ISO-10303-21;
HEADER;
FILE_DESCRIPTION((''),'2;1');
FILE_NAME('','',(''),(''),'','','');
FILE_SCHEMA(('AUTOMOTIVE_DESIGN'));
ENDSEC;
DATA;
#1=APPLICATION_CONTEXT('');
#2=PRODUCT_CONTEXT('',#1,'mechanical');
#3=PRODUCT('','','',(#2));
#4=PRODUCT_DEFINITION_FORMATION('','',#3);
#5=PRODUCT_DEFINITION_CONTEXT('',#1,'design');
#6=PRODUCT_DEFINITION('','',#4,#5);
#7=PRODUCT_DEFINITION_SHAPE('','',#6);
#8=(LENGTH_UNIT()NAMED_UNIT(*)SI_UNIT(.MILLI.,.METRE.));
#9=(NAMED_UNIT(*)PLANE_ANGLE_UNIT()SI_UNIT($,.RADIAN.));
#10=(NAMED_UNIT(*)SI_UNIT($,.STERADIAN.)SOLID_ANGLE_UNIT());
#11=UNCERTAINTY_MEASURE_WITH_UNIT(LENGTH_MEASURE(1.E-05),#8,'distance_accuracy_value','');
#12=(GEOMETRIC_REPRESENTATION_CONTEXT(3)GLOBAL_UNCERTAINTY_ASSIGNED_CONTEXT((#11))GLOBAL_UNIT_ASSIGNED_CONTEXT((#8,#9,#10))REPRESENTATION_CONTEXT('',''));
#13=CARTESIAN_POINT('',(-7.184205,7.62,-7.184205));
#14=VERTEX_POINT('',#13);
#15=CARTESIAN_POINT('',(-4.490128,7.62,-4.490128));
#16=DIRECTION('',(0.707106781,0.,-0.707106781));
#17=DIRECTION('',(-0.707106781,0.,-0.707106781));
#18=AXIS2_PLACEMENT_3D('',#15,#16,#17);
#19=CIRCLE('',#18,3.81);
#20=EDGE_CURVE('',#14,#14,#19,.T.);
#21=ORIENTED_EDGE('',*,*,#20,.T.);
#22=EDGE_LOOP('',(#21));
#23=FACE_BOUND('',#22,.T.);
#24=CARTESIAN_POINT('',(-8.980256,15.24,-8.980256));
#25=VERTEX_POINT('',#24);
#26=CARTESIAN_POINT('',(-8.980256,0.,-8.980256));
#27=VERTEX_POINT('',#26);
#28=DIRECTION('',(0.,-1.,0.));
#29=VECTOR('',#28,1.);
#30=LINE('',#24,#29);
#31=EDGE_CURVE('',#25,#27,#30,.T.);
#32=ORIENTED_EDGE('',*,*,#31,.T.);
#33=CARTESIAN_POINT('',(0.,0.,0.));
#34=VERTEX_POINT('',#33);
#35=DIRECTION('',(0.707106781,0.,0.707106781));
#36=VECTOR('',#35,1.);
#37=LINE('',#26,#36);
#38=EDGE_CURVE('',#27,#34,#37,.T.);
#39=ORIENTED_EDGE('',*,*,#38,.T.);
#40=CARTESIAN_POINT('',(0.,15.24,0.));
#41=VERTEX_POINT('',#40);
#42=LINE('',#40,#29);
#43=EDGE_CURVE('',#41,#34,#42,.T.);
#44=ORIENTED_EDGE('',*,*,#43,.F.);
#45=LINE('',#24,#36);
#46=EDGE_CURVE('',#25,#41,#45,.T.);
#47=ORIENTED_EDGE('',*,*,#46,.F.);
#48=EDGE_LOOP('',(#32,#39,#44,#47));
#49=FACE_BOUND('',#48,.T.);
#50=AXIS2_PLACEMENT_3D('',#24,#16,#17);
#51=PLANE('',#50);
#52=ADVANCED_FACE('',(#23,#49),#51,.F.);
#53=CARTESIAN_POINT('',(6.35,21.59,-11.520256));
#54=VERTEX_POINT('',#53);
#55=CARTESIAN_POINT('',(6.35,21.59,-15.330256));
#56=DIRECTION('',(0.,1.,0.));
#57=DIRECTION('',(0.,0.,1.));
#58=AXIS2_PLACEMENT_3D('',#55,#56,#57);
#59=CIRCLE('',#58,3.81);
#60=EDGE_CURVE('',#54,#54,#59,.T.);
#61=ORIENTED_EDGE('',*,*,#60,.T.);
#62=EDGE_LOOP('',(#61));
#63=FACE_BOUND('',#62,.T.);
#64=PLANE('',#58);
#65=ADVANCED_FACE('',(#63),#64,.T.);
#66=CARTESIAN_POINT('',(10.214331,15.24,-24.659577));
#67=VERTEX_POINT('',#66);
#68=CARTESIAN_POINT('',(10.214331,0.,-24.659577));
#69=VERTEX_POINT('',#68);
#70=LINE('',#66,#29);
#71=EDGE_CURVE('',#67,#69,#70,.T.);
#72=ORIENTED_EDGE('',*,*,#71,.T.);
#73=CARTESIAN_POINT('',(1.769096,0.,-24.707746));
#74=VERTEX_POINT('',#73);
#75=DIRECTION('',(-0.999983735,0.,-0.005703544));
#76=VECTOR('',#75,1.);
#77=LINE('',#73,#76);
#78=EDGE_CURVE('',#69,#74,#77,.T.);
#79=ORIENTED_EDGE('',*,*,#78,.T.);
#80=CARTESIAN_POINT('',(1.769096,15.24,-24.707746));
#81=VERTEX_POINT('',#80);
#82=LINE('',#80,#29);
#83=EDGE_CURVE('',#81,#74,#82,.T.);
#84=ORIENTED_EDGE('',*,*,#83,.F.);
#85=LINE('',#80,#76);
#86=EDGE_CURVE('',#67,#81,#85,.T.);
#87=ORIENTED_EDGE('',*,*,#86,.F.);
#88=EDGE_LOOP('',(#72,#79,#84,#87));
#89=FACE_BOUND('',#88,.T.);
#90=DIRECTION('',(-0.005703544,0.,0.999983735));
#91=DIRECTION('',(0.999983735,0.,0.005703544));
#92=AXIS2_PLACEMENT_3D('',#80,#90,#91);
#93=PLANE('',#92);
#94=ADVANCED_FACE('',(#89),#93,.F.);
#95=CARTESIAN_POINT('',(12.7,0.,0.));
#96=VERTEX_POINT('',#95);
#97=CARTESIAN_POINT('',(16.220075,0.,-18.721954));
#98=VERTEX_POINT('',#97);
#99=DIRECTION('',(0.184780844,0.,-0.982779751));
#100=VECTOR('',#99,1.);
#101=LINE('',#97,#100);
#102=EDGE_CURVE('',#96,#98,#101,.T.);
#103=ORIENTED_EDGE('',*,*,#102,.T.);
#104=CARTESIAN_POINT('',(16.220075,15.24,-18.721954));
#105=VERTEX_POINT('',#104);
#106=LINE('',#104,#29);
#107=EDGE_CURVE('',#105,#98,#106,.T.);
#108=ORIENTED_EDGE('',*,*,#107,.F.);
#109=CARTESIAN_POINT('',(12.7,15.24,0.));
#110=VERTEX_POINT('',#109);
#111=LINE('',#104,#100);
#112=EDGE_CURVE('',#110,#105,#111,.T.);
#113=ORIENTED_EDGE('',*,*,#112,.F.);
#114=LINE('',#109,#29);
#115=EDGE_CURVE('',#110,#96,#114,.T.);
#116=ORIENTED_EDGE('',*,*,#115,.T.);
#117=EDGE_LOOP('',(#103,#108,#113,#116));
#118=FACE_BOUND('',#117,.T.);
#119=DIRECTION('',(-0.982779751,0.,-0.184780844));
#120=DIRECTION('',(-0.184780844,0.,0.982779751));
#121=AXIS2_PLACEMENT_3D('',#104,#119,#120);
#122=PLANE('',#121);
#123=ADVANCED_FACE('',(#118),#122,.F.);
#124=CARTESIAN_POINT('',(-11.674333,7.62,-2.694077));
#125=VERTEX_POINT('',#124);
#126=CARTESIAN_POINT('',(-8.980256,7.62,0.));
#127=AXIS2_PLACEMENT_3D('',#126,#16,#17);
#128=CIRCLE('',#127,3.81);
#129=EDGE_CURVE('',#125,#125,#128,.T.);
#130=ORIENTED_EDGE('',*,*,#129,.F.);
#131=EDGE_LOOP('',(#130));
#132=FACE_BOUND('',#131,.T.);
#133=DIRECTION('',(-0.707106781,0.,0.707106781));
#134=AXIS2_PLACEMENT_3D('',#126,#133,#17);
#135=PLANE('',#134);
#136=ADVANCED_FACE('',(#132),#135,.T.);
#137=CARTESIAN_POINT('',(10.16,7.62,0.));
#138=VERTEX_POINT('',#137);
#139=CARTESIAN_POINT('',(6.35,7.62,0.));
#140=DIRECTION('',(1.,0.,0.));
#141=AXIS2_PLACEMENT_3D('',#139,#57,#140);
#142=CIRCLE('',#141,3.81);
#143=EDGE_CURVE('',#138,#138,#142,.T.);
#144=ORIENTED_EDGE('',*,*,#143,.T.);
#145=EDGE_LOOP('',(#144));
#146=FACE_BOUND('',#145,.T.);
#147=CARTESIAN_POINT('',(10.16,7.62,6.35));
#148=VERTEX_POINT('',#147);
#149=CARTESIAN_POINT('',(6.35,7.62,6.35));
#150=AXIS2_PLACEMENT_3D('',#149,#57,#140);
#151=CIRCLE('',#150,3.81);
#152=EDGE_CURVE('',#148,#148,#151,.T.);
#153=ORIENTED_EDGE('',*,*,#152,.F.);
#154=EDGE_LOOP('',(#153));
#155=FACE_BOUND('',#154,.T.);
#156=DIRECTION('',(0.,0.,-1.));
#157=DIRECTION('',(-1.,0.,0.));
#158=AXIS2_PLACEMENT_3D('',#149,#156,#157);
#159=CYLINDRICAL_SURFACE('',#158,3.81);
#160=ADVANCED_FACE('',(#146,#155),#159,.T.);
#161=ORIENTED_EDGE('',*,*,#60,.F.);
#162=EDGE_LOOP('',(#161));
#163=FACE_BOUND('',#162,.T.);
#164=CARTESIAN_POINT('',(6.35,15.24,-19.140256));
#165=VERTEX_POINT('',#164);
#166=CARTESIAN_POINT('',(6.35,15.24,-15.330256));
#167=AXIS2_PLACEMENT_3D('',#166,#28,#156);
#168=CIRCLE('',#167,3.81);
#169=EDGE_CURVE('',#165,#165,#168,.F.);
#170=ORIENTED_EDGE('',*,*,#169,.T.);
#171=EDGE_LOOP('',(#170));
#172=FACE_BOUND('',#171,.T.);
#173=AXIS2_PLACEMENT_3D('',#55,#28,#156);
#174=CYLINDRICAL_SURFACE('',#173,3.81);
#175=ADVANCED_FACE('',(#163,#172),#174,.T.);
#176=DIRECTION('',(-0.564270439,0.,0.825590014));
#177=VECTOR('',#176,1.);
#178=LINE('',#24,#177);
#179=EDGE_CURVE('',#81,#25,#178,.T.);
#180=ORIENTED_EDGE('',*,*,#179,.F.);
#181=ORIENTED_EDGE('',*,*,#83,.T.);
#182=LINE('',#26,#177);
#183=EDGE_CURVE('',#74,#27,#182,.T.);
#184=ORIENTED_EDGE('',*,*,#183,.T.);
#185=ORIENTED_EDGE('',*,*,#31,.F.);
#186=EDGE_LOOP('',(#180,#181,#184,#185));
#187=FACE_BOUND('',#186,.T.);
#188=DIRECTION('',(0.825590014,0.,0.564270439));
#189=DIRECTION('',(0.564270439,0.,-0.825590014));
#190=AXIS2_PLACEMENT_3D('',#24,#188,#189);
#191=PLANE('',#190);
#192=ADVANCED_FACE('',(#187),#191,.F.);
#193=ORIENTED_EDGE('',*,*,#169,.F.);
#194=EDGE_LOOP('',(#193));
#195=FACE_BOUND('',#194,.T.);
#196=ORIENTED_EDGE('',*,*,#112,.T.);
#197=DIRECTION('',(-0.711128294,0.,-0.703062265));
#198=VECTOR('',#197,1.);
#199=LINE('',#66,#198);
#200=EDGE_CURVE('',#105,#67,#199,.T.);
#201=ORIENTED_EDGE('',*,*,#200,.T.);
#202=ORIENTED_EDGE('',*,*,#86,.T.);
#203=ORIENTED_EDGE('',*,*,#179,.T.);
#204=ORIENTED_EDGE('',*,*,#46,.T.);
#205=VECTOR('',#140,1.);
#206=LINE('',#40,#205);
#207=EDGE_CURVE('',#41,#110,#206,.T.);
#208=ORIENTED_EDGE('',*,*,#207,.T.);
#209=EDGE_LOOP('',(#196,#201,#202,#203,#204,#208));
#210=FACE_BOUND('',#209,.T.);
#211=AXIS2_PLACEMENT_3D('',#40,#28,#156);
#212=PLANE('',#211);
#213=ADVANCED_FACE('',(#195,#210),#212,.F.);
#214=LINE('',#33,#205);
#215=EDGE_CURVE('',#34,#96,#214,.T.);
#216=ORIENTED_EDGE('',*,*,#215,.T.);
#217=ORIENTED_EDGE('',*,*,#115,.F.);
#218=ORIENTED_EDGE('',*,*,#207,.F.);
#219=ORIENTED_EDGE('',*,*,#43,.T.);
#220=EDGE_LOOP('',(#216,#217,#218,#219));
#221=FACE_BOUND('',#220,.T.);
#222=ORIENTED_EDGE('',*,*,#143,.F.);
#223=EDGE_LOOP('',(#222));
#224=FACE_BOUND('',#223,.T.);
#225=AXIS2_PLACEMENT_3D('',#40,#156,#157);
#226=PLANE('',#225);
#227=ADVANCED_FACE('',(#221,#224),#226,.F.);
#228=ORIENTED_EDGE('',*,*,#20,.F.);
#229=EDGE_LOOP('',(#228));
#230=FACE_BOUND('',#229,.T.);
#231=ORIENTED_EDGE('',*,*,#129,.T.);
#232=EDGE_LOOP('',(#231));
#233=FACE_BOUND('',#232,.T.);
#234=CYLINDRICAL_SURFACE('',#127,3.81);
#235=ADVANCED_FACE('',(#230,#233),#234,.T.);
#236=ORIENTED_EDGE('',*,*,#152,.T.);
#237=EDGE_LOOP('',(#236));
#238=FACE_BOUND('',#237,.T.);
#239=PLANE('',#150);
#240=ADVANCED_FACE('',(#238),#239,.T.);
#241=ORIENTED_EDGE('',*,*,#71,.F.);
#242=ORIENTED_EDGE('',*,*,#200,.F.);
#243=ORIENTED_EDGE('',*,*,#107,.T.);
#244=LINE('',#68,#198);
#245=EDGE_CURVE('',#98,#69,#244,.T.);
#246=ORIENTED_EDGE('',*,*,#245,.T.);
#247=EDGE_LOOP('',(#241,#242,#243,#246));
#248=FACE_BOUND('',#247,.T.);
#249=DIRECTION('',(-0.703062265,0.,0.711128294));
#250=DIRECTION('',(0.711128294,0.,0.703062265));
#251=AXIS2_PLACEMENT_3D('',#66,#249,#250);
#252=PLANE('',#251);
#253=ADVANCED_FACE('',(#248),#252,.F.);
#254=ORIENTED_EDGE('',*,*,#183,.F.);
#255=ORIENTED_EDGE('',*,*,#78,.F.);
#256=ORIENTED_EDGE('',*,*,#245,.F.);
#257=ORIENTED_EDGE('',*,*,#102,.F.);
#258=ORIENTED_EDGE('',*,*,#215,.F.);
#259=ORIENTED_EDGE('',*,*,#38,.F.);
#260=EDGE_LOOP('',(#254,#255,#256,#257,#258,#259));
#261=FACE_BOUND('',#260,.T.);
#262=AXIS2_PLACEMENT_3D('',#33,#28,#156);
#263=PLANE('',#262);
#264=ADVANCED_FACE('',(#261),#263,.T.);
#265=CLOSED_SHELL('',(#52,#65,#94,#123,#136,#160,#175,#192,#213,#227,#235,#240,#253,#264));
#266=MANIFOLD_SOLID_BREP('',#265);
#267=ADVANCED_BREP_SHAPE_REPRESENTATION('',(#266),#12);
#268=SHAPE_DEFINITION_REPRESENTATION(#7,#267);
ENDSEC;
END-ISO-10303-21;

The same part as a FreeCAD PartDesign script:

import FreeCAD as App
import Part
import Sketcher
Q = App.Units.Quantity


def add_polygon(sketch, points):
    """Adds a closed chain of lines whose ends are joined by coincident constraints."""
    first, n = sketch.GeometryCount, len(points)
    for a, b in zip(points, points[1:] + points[:1]):
        sketch.addGeometry(Part.LineSegment(App.Vector(*a, 0), App.Vector(*b, 0)), False)
    for i in range(n):
        sketch.addConstraint(Sketcher.Constraint("Coincident", first + i, 2, first + (i + 1) % n, 1))

doc = App.newDocument("Part")
body = doc.addObject("PartDesign::Body", "Body")

sketch1 = body.newObject("Sketcher::SketchObject", "Sketch")
sketch1.AttachmentSupport = (doc.getObject("XZ_Plane"), [""])
sketch1.MapMode = "FlatFace"
add_polygon(sketch1, [(-9, -9), (0, 0), (13, 0), (16, -19), (10, -25), (2, -25)])
sketch1.addConstraint([
    Sketcher.Constraint("Horizontal", 1),
    Sketcher.Constraint("Coincident", 0, 2, -1, 1),
    Sketcher.Constraint("Equal", 3, 4),
    Sketcher.Constraint("Equal", 2, 5),
    Sketcher.Constraint("DistanceX", 1, 1, 1, 2, Q("0.5 in")),
    Sketcher.Constraint("Angle", 0, Q("45 deg")),
    Sketcher.Constraint("Distance", 0, Q("0.5 in")),
    Sketcher.Constraint("Distance", 2, Q("0.75 in")),
    Sketcher.Constraint("DistanceY", 2, 2, 5, 2, Q("9.741698 mm")),
    Sketcher.Constraint("DistanceX", -1, 1, 3, 2, Q("10.214331 mm")),
    Sketcher.Constraint("DistanceY", 4, 2, 3, 2, Q("0.048169 mm")),
])
pad1 = body.newObject("PartDesign::Pad", "Pad")
pad1.Profile = sketch1
pad1.Length = Q("0.6 in")
pad1.Reversed = True

sketch2 = body.newObject("Sketcher::SketchObject", "Sketch001")
sketch2.AttachmentSupport = (doc.getObject("XY_Plane"), [""])
sketch2.MapMode = "FlatFace"
sketch2.addGeometry(Part.Circle(App.Vector(6.3, 7.6, 0), App.Vector(0, 0, 1), 3.8), False)
sketch2.addConstraint([
    Sketcher.Constraint("Diameter", 0, Q("0.3 in")),
    Sketcher.Constraint("DistanceY", -1, 1, 0, 3, Q("0.3 in")),
    Sketcher.Constraint("DistanceX", -1, 1, 0, 3, Q("0.25 in")),
])
pad2 = body.newObject("PartDesign::Pad", "Pad001")
pad2.Profile = sketch2
pad2.Length = Q("0.25 in")
doc.recompute()

datumplane = body.newObject("PartDesign::Plane", "DatumPlane")
datumplane.Placement = App.Placement(App.Vector(0, 0, 0), App.Rotation(App.Vector(-0.382683432, 0, 0.923879533), App.Vector(0, -1, 0), App.Vector(0.923879533, 0, 0.382683432), "ZXY"))
mirrored = body.newObject("PartDesign::Mirrored", "Mirrored")
mirrored.Originals = [pad2]
mirrored.MirrorPlane = (datumplane, [""])
body.Tip = mirrored

sketch3 = body.newObject("Sketcher::SketchObject", "Sketch002")
sketch3.AttachmentSupport = (doc.getObject("XZ_Plane"), [""])
sketch3.MapMode = "FlatFace"
sketch3.AttachmentOffset = App.Placement(App.Vector(0, 0, -0.6 * 25.4), App.Rotation())
sketch3.addGeometry(Part.Circle(App.Vector(6.3, -15.3, 0), App.Vector(0, 0, 1), 3.8), False)
sketch3.addConstraint([
    Sketcher.Constraint("Diameter", 0, Q("0.3 in")),
    Sketcher.Constraint("DistanceX", -1, 1, 0, 3, Q("0.25 in")),
    Sketcher.Constraint("DistanceY", 0, 3, -1, 1, Q("15.330256 mm")),
])
pad3 = body.newObject("PartDesign::Pad", "Pad002")
pad3.Profile = sketch3
pad3.Length = Q("0.25 in")
pad3.Reversed = True

doc.recompute()
